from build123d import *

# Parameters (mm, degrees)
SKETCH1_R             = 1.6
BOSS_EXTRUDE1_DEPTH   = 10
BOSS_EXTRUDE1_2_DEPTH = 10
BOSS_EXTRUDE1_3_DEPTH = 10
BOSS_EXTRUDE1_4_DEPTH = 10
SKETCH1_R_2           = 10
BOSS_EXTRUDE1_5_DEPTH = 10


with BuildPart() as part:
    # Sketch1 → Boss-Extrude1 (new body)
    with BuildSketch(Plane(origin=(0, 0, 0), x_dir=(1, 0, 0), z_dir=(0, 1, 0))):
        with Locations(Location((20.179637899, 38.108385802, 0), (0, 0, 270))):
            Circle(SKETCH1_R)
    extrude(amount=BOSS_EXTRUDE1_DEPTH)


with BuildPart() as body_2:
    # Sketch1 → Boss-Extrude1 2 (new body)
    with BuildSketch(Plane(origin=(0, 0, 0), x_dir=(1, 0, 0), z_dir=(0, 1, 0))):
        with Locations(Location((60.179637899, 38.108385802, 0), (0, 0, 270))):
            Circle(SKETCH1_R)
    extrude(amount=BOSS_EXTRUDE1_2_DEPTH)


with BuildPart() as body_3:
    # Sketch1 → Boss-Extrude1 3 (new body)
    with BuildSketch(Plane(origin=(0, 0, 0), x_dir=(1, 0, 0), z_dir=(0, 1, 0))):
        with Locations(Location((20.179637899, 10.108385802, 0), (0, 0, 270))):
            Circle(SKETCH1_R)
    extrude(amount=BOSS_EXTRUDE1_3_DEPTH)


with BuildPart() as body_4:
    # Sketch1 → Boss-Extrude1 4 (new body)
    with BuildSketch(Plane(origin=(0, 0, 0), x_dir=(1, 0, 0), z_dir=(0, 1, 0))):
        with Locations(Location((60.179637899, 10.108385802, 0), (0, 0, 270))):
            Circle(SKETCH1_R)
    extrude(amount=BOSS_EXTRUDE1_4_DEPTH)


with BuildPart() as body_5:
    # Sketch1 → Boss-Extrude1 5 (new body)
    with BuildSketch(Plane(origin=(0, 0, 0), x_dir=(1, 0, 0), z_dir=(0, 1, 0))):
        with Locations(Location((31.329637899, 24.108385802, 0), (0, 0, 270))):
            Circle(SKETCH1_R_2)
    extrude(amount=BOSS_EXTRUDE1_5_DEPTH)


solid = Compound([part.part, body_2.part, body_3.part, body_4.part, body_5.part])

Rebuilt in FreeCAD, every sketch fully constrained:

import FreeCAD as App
import Part
import Sketcher
from FreeCAD import Vector
Q = App.Units.Quantity

doc = App.newDocument("Part")
body = doc.addObject("PartDesign::Body", "Body")

sketch1 = body.newObject("Sketcher::SketchObject", "Sketch")
sketch1.AttachmentSupport = (doc.getObject("XZ_Plane"), [""])
sketch1.MapMode = "FlatFace"
sketch1.addGeometry(Part.Circle(Vector(20.179638, -38.108386, 0), Vector(0, 0, 1), 1.6), False)
sketch1.addConstraint(Sketcher.Constraint("Diameter", 0, Q("3.2 mm")))
sketch1.addConstraint(Sketcher.Constraint("DistanceX", -1, 1, 0, 3, Q("20.179638 mm")))
sketch1.addConstraint(Sketcher.Constraint("DistanceY", 0, 3, -1, 1, Q("38.108386 mm")))
pad1 = body.newObject("PartDesign::Pad", "Pad")
pad1.Profile = sketch1
pad1.Length = 10
pad1.Reversed = True
body2 = doc.addObject("PartDesign::Body", "Body001")

sketch2 = body2.newObject("Sketcher::SketchObject", "Sketch001")
sketch2.AttachmentSupport = (doc.getObject("XZ_Plane001"), [""])
sketch2.MapMode = "FlatFace"
sketch2.addGeometry(Part.Circle(Vector(60.179638, -38.108386, 0), Vector(0, 0, 1), 1.6), False)
sketch2.addConstraint(Sketcher.Constraint("Diameter", 0, Q("3.2 mm")))
sketch2.addConstraint(Sketcher.Constraint("DistanceX", -1, 1, 0, 3, Q("60.179638 mm")))
sketch2.addConstraint(Sketcher.Constraint("DistanceY", 0, 3, -1, 1, Q("38.108386 mm")))
pad2 = body2.newObject("PartDesign::Pad", "Pad001")
pad2.Profile = sketch2
pad2.Length = 10
pad2.Reversed = True
body3 = doc.addObject("PartDesign::Body", "Body002")

sketch3 = body3.newObject("Sketcher::SketchObject", "Sketch002")
sketch3.AttachmentSupport = (doc.getObject("XZ_Plane002"), [""])
sketch3.MapMode = "FlatFace"
sketch3.addGeometry(Part.Circle(Vector(20.179638, -10.108386, 0), Vector(0, 0, 1), 1.6), False)
sketch3.addConstraint(Sketcher.Constraint("Diameter", 0, Q("3.2 mm")))
sketch3.addConstraint(Sketcher.Constraint("DistanceX", -1, 1, 0, 3, Q("20.179638 mm")))
sketch3.addConstraint(Sketcher.Constraint("DistanceY", 0, 3, -1, 1, Q("10.108386 mm")))
pad3 = body3.newObject("PartDesign::Pad", "Pad002")
pad3.Profile = sketch3
pad3.Length = 10
pad3.Reversed = True
body4 = doc.addObject("PartDesign::Body", "Body003")

sketch4 = body4.newObject("Sketcher::SketchObject", "Sketch003")
sketch4.AttachmentSupport = (doc.getObject("XZ_Plane003"), [""])
sketch4.MapMode = "FlatFace"
sketch4.addGeometry(Part.Circle(Vector(60.179638, -10.108386, 0), Vector(0, 0, 1), 1.6), False)
sketch4.addConstraint(Sketcher.Constraint("Diameter", 0, Q("3.2 mm")))
sketch4.addConstraint(Sketcher.Constraint("DistanceX", -1, 1, 0, 3, Q("60.179638 mm")))
sketch4.addConstraint(Sketcher.Constraint("DistanceY", 0, 3, -1, 1, Q("10.108386 mm")))
pad4 = body4.newObject("PartDesign::Pad", "Pad003")
pad4.Profile = sketch4
pad4.Length = 10
pad4.Reversed = True
body5 = doc.addObject("PartDesign::Body", "Body004")

sketch5 = body5.newObject("Sketcher::SketchObject", "Sketch004")
sketch5.AttachmentSupport = (doc.getObject("XZ_Plane004"), [""])
sketch5.MapMode = "FlatFace"
sketch5.addGeometry(Part.Circle(Vector(31.329638, -24.108386, 0), Vector(0, 0, 1), 10), False)
sketch5.addConstraint(Sketcher.Constraint("Diameter", 0, Q("20 mm")))
sketch5.addConstraint(Sketcher.Constraint("DistanceX", -1, 1, 0, 3, Q("31.329638 mm")))
sketch5.addConstraint(Sketcher.Constraint("DistanceY", 0, 3, -1, 1, Q("24.108386 mm")))
pad5 = body5.newObject("PartDesign::Pad", "Pad004")
pad5.Profile = sketch5
pad5.Length = 10
pad5.Reversed = True

doc.recompute()
